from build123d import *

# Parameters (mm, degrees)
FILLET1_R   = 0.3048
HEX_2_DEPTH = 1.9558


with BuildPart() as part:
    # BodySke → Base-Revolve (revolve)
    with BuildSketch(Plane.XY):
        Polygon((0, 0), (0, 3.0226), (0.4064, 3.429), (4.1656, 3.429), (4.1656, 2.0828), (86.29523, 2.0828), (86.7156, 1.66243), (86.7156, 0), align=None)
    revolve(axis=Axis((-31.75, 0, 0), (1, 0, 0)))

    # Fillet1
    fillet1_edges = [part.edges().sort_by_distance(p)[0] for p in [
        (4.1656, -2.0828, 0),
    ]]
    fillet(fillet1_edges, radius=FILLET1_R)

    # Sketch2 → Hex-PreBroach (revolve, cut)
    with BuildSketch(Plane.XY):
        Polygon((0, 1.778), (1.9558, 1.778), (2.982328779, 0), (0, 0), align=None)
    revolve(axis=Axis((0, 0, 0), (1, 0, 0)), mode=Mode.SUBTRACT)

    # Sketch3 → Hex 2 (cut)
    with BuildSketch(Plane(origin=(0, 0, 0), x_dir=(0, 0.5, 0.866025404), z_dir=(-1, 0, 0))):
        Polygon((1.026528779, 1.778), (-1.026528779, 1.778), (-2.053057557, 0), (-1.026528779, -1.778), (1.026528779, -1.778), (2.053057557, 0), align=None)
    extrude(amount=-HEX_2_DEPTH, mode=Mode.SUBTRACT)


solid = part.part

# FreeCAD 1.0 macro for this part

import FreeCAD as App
import Part
import Sketcher
Q = App.Units.Quantity


def edges_at(feature, points):
    """Names of the edges that pass closest to the given points."""
    edges = feature.Shape.Edges
    near = lambda p: min(range(len(edges)), key=lambda i: edges[i].distToShape(Part.Vertex(*p))[0])
    return sorted({f"Edge{near(p) + 1}" for p in points})

doc = App.newDocument("Part")
params = doc.addObject("Spreadsheet::Sheet", "Params")
for row, (alias, value) in enumerate([
    ("sketch1_width", "3.414 in"),
    ("sketch1_width2", "0.148 in"),
    ("sketch1_height", "0.119 in"),
    ("sketch1_height2", "0.053 in"),
    ("revolution_angle", "360 deg"),
    ("fillet_radius", "0.012 in"),
    ("sketch2_height", "0.07 in"),
    ("sketch2_width", "0.077 in"),
    ("groove_angle", "360 deg"),
    ("pocket1_length", "0.077 in"),
], start=1):
    params.set(f"A{row}", alias)
    params.set(f"B{row}", "=" + value)
    params.setAlias(f"B{row}", alias)

body = doc.addObject("PartDesign::Body", "Body")

# Sketch on XY plane
sketch1 = body.newObject("Sketcher::SketchObject", "Sketch")
sketch1.AttachmentSupport = (doc.getObject("XY_Plane"), [""])
sketch1.MapMode = "FlatFace"
sketch1.addGeometry(Part.LineSegment(App.Vector(0, 3, 0), App.Vector(0, 0, 0)), False)
sketch1.addGeometry(Part.LineSegment(App.Vector(0, 0, 0), App.Vector(86.7, 0, 0)), False)
sketch1.addGeometry(Part.LineSegment(App.Vector(86.7, 0, 0), App.Vector(86.7, 1.7, 0)), False)
sketch1.addGeometry(Part.LineSegment(App.Vector(86.7, 1.7, 0), App.Vector(86.3, 2.1, 0)), False)
sketch1.addGeometry(Part.LineSegment(App.Vector(86.3, 2.1, 0), App.Vector(4.2, 2.1, 0)), False)
sketch1.addGeometry(Part.LineSegment(App.Vector(4.2, 2.1, 0), App.Vector(4.2, 3.4, 0)), False)
sketch1.addGeometry(Part.LineSegment(App.Vector(4.2, 3.4, 0), App.Vector(0.4, 3.4, 0)), False)
sketch1.addGeometry(Part.LineSegment(App.Vector(0.4, 3.4, 0), App.Vector(0, 3, 0)), False)
sketch1.addConstraint(Sketcher.Constraint("Coincident", 0, 2, 1, 1))
sketch1.addConstraint(Sketcher.Constraint("Coincident", 1, 2, 2, 1))
sketch1.addConstraint(Sketcher.Constraint("Coincident", 2, 2, 3, 1))
sketch1.addConstraint(Sketcher.Constraint("Coincident", 3, 2, 4, 1))
sketch1.addConstraint(Sketcher.Constraint("Coincident", 4, 2, 5, 1))
sketch1.addConstraint(Sketcher.Constraint("Coincident", 5, 2, 6, 1))
sketch1.addConstraint(Sketcher.Constraint("Coincident", 6, 2, 7, 1))
sketch1.addConstraint(Sketcher.Constraint("Coincident", 7, 2, 0, 1))
sketch1.addConstraint(Sketcher.Constraint("Vertical", 0))
sketch1.addConstraint(Sketcher.Constraint("Horizontal", 1))
sketch1.addConstraint(Sketcher.Constraint("Vertical", 2))
sketch1.addConstraint(Sketcher.Constraint("Horizontal", 4))
sketch1.addConstraint(Sketcher.Constraint("Vertical", 5))
sketch1.addConstraint(Sketcher.Constraint("Horizontal", 6))
sketch1.addConstraint(Sketcher.Constraint("Coincident", 0, 2, -1, 1))
sketch1.addConstraint(Sketcher.Constraint("Perpendicular", 3, 7))
sketch1.addConstraint(Sketcher.Constraint("Angle", 3, Q("135 deg")))
sketch1.addConstraint(Sketcher.Constraint("DistanceX", 1, 1, 1, 2, Q("3.414 in")))
sketch1.addConstraint(Sketcher.Constraint("DistanceX", 6, 2, 6, 1, Q("0.148 in")))
sketch1.addConstraint(Sketcher.Constraint("DistanceY", 0, 2, 0, 1, Q("0.119 in")))
sketch1.addConstraint(Sketcher.Constraint("DistanceY", 5, 1, 5, 2, Q("0.053 in")))
sketch1.addConstraint(Sketcher.Constraint("DistanceX", 4, 2, 2, 2, Q("3.25 in")))
sketch1.addConstraint(Sketcher.Constraint("DistanceX", 4, 2, 4, 1, Q("82.12963 mm")))
sketch1.setExpression("Constraints[17]", "Params.sketch1_width")
sketch1.setExpression("Constraints[18]", "Params.sketch1_width2")
sketch1.setExpression("Constraints[19]", "Params.sketch1_height")
sketch1.setExpression("Constraints[20]", "Params.sketch1_height2")
revolution = body.newObject("PartDesign::Revolution", "Revolution")
revolution.Profile = sketch1
revolution.ReferenceAxis = (sketch1, ["H_Axis"])
revolution.setExpression("Angle", "Params.revolution_angle")
doc.recompute()

fillet = body.newObject("PartDesign::Fillet", "Fillet")
fillet.Base = (revolution, edges_at(revolution, [(4.166, -2.083, 0)]))
fillet.setExpression("Radius", "Params.fillet_radius")

# Sketch on XY plane
sketch2 = body.newObject("Sketcher::SketchObject", "Sketch001")
sketch2.AttachmentSupport = (doc.getObject("XY_Plane"), [""])
sketch2.MapMode = "FlatFace"
sketch2.addGeometry(Part.LineSegment(App.Vector(2, 1.8, 0), App.Vector(0, 1.8, 0)), False)
sketch2.addGeometry(Part.LineSegment(App.Vector(0, 1.8, 0), App.Vector(0, 0, 0)), False)
sketch2.addGeometry(Part.LineSegment(App.Vector(0, 0, 0), App.Vector(3, 0, 0)), False)
sketch2.addGeometry(Part.LineSegment(App.Vector(3, 0, 0), App.Vector(2, 1.8, 0)), False)
sketch2.addConstraint(Sketcher.Constraint("Coincident", 0, 2, 1, 1))
sketch2.addConstraint(Sketcher.Constraint("Coincident", 1, 2, 2, 1))
sketch2.addConstraint(Sketcher.Constraint("Coincident", 2, 2, 3, 1))
sketch2.addConstraint(Sketcher.Constraint("Coincident", 3, 2, 0, 1))
sketch2.addConstraint(Sketcher.Constraint("Horizontal", 0))
sketch2.addConstraint(Sketcher.Constraint("Vertical", 1))
sketch2.addConstraint(Sketcher.Constraint("Horizontal", 2))
sketch2.addConstraint(Sketcher.Constraint("Coincident", 1, 2, -1, 1))
sketch2.addConstraint(Sketcher.Constraint("Angle", 3, Q("120 deg")))
sketch2.addConstraint(Sketcher.Constraint("DistanceY", 1, 2, 1, 1, Q("0.07 in")))
sketch2.addConstraint(Sketcher.Constraint("DistanceX", 0, 2, 0, 1, Q("0.077 in")))
sketch2.setExpression("Constraints[9]", "Params.sketch2_height")
sketch2.setExpression("Constraints[10]", "Params.sketch2_width")
groove = body.newObject("PartDesign::Groove", "Groove")
groove.Profile = sketch2
groove.ReferenceAxis = (sketch2, ["H_Axis"])
groove.setExpression("Angle", "Params.groove_angle")

# Sketch on YZ plane
sketch3 = body.newObject("Sketcher::SketchObject", "Sketch002")
sketch3.AttachmentSupport = (doc.getObject("YZ_Plane"), [""])
sketch3.MapMode = "FlatFace"
sketch3.addGeometry(Part.LineSegment(App.Vector(2.1, 0, 0), App.Vector(1, -1.8, 0)), False)
sketch3.addGeometry(Part.LineSegment(App.Vector(1, -1.8, 0), App.Vector(-1, -1.8, 0)), False)
sketch3.addGeometry(Part.LineSegment(App.Vector(-1, -1.8, 0), App.Vector(-2.1, 0, 0)), False)
sketch3.addGeometry(Part.LineSegment(App.Vector(-2.1, 0, 0), App.Vector(-1, 1.8, 0)), False)
sketch3.addGeometry(Part.LineSegment(App.Vector(-1, 1.8, 0), App.Vector(1, 1.8, 0)), False)
sketch3.addGeometry(Part.LineSegment(App.Vector(1, 1.8, 0), App.Vector(2.1, 0, 0)), False)
sketch3.addConstraint(Sketcher.Constraint("Coincident", 0, 2, 1, 1))
sketch3.addConstraint(Sketcher.Constraint("Coincident", 1, 2, 2, 1))
sketch3.addConstraint(Sketcher.Constraint("Coincident", 2, 2, 3, 1))
sketch3.addConstraint(Sketcher.Constraint("Coincident", 3, 2, 4, 1))
sketch3.addConstraint(Sketcher.Constraint("Coincident", 4, 2, 5, 1))
sketch3.addConstraint(Sketcher.Constraint("Coincident", 5, 2, 0, 1))
sketch3.addConstraint(Sketcher.Constraint("Horizontal", 1))
sketch3.addConstraint(Sketcher.Constraint("Horizontal", 4))
sketch3.addConstraint(Sketcher.Constraint("Symmetric", 0, 2, 3, 2, -1, 1))
sketch3.addConstraint(Sketcher.Constraint("Symmetric", 2, 2, 5, 2, -1, 1))
sketch3.addConstraint(Sketcher.Constraint("PointOnObject", 2, 2, -1))
sketch3.addConstraint(Sketcher.Constraint("Parallel", 2, 5))
sketch3.addConstraint(Sketcher.Constraint("Vertical", 1, 2, 3, 2))
sketch3.addConstraint(Sketcher.Constraint("Angle", 0, Q("-120 deg")))
sketch3.addConstraint(Sketcher.Constraint("DistanceY", 0, 2, -1, 1, Q("0.07 in")))
sketch3.addConstraint(Sketcher.Constraint("DistanceX", 1, 2, 1, 1, Q("2.053058 mm")))
pocket1 = body.newObject("PartDesign::Pocket", "Pocket")
pocket1.Profile = sketch3
pocket1.setExpression("Length", "Params.pocket1_length")
pocket1.Reversed = True

doc.recompute()
